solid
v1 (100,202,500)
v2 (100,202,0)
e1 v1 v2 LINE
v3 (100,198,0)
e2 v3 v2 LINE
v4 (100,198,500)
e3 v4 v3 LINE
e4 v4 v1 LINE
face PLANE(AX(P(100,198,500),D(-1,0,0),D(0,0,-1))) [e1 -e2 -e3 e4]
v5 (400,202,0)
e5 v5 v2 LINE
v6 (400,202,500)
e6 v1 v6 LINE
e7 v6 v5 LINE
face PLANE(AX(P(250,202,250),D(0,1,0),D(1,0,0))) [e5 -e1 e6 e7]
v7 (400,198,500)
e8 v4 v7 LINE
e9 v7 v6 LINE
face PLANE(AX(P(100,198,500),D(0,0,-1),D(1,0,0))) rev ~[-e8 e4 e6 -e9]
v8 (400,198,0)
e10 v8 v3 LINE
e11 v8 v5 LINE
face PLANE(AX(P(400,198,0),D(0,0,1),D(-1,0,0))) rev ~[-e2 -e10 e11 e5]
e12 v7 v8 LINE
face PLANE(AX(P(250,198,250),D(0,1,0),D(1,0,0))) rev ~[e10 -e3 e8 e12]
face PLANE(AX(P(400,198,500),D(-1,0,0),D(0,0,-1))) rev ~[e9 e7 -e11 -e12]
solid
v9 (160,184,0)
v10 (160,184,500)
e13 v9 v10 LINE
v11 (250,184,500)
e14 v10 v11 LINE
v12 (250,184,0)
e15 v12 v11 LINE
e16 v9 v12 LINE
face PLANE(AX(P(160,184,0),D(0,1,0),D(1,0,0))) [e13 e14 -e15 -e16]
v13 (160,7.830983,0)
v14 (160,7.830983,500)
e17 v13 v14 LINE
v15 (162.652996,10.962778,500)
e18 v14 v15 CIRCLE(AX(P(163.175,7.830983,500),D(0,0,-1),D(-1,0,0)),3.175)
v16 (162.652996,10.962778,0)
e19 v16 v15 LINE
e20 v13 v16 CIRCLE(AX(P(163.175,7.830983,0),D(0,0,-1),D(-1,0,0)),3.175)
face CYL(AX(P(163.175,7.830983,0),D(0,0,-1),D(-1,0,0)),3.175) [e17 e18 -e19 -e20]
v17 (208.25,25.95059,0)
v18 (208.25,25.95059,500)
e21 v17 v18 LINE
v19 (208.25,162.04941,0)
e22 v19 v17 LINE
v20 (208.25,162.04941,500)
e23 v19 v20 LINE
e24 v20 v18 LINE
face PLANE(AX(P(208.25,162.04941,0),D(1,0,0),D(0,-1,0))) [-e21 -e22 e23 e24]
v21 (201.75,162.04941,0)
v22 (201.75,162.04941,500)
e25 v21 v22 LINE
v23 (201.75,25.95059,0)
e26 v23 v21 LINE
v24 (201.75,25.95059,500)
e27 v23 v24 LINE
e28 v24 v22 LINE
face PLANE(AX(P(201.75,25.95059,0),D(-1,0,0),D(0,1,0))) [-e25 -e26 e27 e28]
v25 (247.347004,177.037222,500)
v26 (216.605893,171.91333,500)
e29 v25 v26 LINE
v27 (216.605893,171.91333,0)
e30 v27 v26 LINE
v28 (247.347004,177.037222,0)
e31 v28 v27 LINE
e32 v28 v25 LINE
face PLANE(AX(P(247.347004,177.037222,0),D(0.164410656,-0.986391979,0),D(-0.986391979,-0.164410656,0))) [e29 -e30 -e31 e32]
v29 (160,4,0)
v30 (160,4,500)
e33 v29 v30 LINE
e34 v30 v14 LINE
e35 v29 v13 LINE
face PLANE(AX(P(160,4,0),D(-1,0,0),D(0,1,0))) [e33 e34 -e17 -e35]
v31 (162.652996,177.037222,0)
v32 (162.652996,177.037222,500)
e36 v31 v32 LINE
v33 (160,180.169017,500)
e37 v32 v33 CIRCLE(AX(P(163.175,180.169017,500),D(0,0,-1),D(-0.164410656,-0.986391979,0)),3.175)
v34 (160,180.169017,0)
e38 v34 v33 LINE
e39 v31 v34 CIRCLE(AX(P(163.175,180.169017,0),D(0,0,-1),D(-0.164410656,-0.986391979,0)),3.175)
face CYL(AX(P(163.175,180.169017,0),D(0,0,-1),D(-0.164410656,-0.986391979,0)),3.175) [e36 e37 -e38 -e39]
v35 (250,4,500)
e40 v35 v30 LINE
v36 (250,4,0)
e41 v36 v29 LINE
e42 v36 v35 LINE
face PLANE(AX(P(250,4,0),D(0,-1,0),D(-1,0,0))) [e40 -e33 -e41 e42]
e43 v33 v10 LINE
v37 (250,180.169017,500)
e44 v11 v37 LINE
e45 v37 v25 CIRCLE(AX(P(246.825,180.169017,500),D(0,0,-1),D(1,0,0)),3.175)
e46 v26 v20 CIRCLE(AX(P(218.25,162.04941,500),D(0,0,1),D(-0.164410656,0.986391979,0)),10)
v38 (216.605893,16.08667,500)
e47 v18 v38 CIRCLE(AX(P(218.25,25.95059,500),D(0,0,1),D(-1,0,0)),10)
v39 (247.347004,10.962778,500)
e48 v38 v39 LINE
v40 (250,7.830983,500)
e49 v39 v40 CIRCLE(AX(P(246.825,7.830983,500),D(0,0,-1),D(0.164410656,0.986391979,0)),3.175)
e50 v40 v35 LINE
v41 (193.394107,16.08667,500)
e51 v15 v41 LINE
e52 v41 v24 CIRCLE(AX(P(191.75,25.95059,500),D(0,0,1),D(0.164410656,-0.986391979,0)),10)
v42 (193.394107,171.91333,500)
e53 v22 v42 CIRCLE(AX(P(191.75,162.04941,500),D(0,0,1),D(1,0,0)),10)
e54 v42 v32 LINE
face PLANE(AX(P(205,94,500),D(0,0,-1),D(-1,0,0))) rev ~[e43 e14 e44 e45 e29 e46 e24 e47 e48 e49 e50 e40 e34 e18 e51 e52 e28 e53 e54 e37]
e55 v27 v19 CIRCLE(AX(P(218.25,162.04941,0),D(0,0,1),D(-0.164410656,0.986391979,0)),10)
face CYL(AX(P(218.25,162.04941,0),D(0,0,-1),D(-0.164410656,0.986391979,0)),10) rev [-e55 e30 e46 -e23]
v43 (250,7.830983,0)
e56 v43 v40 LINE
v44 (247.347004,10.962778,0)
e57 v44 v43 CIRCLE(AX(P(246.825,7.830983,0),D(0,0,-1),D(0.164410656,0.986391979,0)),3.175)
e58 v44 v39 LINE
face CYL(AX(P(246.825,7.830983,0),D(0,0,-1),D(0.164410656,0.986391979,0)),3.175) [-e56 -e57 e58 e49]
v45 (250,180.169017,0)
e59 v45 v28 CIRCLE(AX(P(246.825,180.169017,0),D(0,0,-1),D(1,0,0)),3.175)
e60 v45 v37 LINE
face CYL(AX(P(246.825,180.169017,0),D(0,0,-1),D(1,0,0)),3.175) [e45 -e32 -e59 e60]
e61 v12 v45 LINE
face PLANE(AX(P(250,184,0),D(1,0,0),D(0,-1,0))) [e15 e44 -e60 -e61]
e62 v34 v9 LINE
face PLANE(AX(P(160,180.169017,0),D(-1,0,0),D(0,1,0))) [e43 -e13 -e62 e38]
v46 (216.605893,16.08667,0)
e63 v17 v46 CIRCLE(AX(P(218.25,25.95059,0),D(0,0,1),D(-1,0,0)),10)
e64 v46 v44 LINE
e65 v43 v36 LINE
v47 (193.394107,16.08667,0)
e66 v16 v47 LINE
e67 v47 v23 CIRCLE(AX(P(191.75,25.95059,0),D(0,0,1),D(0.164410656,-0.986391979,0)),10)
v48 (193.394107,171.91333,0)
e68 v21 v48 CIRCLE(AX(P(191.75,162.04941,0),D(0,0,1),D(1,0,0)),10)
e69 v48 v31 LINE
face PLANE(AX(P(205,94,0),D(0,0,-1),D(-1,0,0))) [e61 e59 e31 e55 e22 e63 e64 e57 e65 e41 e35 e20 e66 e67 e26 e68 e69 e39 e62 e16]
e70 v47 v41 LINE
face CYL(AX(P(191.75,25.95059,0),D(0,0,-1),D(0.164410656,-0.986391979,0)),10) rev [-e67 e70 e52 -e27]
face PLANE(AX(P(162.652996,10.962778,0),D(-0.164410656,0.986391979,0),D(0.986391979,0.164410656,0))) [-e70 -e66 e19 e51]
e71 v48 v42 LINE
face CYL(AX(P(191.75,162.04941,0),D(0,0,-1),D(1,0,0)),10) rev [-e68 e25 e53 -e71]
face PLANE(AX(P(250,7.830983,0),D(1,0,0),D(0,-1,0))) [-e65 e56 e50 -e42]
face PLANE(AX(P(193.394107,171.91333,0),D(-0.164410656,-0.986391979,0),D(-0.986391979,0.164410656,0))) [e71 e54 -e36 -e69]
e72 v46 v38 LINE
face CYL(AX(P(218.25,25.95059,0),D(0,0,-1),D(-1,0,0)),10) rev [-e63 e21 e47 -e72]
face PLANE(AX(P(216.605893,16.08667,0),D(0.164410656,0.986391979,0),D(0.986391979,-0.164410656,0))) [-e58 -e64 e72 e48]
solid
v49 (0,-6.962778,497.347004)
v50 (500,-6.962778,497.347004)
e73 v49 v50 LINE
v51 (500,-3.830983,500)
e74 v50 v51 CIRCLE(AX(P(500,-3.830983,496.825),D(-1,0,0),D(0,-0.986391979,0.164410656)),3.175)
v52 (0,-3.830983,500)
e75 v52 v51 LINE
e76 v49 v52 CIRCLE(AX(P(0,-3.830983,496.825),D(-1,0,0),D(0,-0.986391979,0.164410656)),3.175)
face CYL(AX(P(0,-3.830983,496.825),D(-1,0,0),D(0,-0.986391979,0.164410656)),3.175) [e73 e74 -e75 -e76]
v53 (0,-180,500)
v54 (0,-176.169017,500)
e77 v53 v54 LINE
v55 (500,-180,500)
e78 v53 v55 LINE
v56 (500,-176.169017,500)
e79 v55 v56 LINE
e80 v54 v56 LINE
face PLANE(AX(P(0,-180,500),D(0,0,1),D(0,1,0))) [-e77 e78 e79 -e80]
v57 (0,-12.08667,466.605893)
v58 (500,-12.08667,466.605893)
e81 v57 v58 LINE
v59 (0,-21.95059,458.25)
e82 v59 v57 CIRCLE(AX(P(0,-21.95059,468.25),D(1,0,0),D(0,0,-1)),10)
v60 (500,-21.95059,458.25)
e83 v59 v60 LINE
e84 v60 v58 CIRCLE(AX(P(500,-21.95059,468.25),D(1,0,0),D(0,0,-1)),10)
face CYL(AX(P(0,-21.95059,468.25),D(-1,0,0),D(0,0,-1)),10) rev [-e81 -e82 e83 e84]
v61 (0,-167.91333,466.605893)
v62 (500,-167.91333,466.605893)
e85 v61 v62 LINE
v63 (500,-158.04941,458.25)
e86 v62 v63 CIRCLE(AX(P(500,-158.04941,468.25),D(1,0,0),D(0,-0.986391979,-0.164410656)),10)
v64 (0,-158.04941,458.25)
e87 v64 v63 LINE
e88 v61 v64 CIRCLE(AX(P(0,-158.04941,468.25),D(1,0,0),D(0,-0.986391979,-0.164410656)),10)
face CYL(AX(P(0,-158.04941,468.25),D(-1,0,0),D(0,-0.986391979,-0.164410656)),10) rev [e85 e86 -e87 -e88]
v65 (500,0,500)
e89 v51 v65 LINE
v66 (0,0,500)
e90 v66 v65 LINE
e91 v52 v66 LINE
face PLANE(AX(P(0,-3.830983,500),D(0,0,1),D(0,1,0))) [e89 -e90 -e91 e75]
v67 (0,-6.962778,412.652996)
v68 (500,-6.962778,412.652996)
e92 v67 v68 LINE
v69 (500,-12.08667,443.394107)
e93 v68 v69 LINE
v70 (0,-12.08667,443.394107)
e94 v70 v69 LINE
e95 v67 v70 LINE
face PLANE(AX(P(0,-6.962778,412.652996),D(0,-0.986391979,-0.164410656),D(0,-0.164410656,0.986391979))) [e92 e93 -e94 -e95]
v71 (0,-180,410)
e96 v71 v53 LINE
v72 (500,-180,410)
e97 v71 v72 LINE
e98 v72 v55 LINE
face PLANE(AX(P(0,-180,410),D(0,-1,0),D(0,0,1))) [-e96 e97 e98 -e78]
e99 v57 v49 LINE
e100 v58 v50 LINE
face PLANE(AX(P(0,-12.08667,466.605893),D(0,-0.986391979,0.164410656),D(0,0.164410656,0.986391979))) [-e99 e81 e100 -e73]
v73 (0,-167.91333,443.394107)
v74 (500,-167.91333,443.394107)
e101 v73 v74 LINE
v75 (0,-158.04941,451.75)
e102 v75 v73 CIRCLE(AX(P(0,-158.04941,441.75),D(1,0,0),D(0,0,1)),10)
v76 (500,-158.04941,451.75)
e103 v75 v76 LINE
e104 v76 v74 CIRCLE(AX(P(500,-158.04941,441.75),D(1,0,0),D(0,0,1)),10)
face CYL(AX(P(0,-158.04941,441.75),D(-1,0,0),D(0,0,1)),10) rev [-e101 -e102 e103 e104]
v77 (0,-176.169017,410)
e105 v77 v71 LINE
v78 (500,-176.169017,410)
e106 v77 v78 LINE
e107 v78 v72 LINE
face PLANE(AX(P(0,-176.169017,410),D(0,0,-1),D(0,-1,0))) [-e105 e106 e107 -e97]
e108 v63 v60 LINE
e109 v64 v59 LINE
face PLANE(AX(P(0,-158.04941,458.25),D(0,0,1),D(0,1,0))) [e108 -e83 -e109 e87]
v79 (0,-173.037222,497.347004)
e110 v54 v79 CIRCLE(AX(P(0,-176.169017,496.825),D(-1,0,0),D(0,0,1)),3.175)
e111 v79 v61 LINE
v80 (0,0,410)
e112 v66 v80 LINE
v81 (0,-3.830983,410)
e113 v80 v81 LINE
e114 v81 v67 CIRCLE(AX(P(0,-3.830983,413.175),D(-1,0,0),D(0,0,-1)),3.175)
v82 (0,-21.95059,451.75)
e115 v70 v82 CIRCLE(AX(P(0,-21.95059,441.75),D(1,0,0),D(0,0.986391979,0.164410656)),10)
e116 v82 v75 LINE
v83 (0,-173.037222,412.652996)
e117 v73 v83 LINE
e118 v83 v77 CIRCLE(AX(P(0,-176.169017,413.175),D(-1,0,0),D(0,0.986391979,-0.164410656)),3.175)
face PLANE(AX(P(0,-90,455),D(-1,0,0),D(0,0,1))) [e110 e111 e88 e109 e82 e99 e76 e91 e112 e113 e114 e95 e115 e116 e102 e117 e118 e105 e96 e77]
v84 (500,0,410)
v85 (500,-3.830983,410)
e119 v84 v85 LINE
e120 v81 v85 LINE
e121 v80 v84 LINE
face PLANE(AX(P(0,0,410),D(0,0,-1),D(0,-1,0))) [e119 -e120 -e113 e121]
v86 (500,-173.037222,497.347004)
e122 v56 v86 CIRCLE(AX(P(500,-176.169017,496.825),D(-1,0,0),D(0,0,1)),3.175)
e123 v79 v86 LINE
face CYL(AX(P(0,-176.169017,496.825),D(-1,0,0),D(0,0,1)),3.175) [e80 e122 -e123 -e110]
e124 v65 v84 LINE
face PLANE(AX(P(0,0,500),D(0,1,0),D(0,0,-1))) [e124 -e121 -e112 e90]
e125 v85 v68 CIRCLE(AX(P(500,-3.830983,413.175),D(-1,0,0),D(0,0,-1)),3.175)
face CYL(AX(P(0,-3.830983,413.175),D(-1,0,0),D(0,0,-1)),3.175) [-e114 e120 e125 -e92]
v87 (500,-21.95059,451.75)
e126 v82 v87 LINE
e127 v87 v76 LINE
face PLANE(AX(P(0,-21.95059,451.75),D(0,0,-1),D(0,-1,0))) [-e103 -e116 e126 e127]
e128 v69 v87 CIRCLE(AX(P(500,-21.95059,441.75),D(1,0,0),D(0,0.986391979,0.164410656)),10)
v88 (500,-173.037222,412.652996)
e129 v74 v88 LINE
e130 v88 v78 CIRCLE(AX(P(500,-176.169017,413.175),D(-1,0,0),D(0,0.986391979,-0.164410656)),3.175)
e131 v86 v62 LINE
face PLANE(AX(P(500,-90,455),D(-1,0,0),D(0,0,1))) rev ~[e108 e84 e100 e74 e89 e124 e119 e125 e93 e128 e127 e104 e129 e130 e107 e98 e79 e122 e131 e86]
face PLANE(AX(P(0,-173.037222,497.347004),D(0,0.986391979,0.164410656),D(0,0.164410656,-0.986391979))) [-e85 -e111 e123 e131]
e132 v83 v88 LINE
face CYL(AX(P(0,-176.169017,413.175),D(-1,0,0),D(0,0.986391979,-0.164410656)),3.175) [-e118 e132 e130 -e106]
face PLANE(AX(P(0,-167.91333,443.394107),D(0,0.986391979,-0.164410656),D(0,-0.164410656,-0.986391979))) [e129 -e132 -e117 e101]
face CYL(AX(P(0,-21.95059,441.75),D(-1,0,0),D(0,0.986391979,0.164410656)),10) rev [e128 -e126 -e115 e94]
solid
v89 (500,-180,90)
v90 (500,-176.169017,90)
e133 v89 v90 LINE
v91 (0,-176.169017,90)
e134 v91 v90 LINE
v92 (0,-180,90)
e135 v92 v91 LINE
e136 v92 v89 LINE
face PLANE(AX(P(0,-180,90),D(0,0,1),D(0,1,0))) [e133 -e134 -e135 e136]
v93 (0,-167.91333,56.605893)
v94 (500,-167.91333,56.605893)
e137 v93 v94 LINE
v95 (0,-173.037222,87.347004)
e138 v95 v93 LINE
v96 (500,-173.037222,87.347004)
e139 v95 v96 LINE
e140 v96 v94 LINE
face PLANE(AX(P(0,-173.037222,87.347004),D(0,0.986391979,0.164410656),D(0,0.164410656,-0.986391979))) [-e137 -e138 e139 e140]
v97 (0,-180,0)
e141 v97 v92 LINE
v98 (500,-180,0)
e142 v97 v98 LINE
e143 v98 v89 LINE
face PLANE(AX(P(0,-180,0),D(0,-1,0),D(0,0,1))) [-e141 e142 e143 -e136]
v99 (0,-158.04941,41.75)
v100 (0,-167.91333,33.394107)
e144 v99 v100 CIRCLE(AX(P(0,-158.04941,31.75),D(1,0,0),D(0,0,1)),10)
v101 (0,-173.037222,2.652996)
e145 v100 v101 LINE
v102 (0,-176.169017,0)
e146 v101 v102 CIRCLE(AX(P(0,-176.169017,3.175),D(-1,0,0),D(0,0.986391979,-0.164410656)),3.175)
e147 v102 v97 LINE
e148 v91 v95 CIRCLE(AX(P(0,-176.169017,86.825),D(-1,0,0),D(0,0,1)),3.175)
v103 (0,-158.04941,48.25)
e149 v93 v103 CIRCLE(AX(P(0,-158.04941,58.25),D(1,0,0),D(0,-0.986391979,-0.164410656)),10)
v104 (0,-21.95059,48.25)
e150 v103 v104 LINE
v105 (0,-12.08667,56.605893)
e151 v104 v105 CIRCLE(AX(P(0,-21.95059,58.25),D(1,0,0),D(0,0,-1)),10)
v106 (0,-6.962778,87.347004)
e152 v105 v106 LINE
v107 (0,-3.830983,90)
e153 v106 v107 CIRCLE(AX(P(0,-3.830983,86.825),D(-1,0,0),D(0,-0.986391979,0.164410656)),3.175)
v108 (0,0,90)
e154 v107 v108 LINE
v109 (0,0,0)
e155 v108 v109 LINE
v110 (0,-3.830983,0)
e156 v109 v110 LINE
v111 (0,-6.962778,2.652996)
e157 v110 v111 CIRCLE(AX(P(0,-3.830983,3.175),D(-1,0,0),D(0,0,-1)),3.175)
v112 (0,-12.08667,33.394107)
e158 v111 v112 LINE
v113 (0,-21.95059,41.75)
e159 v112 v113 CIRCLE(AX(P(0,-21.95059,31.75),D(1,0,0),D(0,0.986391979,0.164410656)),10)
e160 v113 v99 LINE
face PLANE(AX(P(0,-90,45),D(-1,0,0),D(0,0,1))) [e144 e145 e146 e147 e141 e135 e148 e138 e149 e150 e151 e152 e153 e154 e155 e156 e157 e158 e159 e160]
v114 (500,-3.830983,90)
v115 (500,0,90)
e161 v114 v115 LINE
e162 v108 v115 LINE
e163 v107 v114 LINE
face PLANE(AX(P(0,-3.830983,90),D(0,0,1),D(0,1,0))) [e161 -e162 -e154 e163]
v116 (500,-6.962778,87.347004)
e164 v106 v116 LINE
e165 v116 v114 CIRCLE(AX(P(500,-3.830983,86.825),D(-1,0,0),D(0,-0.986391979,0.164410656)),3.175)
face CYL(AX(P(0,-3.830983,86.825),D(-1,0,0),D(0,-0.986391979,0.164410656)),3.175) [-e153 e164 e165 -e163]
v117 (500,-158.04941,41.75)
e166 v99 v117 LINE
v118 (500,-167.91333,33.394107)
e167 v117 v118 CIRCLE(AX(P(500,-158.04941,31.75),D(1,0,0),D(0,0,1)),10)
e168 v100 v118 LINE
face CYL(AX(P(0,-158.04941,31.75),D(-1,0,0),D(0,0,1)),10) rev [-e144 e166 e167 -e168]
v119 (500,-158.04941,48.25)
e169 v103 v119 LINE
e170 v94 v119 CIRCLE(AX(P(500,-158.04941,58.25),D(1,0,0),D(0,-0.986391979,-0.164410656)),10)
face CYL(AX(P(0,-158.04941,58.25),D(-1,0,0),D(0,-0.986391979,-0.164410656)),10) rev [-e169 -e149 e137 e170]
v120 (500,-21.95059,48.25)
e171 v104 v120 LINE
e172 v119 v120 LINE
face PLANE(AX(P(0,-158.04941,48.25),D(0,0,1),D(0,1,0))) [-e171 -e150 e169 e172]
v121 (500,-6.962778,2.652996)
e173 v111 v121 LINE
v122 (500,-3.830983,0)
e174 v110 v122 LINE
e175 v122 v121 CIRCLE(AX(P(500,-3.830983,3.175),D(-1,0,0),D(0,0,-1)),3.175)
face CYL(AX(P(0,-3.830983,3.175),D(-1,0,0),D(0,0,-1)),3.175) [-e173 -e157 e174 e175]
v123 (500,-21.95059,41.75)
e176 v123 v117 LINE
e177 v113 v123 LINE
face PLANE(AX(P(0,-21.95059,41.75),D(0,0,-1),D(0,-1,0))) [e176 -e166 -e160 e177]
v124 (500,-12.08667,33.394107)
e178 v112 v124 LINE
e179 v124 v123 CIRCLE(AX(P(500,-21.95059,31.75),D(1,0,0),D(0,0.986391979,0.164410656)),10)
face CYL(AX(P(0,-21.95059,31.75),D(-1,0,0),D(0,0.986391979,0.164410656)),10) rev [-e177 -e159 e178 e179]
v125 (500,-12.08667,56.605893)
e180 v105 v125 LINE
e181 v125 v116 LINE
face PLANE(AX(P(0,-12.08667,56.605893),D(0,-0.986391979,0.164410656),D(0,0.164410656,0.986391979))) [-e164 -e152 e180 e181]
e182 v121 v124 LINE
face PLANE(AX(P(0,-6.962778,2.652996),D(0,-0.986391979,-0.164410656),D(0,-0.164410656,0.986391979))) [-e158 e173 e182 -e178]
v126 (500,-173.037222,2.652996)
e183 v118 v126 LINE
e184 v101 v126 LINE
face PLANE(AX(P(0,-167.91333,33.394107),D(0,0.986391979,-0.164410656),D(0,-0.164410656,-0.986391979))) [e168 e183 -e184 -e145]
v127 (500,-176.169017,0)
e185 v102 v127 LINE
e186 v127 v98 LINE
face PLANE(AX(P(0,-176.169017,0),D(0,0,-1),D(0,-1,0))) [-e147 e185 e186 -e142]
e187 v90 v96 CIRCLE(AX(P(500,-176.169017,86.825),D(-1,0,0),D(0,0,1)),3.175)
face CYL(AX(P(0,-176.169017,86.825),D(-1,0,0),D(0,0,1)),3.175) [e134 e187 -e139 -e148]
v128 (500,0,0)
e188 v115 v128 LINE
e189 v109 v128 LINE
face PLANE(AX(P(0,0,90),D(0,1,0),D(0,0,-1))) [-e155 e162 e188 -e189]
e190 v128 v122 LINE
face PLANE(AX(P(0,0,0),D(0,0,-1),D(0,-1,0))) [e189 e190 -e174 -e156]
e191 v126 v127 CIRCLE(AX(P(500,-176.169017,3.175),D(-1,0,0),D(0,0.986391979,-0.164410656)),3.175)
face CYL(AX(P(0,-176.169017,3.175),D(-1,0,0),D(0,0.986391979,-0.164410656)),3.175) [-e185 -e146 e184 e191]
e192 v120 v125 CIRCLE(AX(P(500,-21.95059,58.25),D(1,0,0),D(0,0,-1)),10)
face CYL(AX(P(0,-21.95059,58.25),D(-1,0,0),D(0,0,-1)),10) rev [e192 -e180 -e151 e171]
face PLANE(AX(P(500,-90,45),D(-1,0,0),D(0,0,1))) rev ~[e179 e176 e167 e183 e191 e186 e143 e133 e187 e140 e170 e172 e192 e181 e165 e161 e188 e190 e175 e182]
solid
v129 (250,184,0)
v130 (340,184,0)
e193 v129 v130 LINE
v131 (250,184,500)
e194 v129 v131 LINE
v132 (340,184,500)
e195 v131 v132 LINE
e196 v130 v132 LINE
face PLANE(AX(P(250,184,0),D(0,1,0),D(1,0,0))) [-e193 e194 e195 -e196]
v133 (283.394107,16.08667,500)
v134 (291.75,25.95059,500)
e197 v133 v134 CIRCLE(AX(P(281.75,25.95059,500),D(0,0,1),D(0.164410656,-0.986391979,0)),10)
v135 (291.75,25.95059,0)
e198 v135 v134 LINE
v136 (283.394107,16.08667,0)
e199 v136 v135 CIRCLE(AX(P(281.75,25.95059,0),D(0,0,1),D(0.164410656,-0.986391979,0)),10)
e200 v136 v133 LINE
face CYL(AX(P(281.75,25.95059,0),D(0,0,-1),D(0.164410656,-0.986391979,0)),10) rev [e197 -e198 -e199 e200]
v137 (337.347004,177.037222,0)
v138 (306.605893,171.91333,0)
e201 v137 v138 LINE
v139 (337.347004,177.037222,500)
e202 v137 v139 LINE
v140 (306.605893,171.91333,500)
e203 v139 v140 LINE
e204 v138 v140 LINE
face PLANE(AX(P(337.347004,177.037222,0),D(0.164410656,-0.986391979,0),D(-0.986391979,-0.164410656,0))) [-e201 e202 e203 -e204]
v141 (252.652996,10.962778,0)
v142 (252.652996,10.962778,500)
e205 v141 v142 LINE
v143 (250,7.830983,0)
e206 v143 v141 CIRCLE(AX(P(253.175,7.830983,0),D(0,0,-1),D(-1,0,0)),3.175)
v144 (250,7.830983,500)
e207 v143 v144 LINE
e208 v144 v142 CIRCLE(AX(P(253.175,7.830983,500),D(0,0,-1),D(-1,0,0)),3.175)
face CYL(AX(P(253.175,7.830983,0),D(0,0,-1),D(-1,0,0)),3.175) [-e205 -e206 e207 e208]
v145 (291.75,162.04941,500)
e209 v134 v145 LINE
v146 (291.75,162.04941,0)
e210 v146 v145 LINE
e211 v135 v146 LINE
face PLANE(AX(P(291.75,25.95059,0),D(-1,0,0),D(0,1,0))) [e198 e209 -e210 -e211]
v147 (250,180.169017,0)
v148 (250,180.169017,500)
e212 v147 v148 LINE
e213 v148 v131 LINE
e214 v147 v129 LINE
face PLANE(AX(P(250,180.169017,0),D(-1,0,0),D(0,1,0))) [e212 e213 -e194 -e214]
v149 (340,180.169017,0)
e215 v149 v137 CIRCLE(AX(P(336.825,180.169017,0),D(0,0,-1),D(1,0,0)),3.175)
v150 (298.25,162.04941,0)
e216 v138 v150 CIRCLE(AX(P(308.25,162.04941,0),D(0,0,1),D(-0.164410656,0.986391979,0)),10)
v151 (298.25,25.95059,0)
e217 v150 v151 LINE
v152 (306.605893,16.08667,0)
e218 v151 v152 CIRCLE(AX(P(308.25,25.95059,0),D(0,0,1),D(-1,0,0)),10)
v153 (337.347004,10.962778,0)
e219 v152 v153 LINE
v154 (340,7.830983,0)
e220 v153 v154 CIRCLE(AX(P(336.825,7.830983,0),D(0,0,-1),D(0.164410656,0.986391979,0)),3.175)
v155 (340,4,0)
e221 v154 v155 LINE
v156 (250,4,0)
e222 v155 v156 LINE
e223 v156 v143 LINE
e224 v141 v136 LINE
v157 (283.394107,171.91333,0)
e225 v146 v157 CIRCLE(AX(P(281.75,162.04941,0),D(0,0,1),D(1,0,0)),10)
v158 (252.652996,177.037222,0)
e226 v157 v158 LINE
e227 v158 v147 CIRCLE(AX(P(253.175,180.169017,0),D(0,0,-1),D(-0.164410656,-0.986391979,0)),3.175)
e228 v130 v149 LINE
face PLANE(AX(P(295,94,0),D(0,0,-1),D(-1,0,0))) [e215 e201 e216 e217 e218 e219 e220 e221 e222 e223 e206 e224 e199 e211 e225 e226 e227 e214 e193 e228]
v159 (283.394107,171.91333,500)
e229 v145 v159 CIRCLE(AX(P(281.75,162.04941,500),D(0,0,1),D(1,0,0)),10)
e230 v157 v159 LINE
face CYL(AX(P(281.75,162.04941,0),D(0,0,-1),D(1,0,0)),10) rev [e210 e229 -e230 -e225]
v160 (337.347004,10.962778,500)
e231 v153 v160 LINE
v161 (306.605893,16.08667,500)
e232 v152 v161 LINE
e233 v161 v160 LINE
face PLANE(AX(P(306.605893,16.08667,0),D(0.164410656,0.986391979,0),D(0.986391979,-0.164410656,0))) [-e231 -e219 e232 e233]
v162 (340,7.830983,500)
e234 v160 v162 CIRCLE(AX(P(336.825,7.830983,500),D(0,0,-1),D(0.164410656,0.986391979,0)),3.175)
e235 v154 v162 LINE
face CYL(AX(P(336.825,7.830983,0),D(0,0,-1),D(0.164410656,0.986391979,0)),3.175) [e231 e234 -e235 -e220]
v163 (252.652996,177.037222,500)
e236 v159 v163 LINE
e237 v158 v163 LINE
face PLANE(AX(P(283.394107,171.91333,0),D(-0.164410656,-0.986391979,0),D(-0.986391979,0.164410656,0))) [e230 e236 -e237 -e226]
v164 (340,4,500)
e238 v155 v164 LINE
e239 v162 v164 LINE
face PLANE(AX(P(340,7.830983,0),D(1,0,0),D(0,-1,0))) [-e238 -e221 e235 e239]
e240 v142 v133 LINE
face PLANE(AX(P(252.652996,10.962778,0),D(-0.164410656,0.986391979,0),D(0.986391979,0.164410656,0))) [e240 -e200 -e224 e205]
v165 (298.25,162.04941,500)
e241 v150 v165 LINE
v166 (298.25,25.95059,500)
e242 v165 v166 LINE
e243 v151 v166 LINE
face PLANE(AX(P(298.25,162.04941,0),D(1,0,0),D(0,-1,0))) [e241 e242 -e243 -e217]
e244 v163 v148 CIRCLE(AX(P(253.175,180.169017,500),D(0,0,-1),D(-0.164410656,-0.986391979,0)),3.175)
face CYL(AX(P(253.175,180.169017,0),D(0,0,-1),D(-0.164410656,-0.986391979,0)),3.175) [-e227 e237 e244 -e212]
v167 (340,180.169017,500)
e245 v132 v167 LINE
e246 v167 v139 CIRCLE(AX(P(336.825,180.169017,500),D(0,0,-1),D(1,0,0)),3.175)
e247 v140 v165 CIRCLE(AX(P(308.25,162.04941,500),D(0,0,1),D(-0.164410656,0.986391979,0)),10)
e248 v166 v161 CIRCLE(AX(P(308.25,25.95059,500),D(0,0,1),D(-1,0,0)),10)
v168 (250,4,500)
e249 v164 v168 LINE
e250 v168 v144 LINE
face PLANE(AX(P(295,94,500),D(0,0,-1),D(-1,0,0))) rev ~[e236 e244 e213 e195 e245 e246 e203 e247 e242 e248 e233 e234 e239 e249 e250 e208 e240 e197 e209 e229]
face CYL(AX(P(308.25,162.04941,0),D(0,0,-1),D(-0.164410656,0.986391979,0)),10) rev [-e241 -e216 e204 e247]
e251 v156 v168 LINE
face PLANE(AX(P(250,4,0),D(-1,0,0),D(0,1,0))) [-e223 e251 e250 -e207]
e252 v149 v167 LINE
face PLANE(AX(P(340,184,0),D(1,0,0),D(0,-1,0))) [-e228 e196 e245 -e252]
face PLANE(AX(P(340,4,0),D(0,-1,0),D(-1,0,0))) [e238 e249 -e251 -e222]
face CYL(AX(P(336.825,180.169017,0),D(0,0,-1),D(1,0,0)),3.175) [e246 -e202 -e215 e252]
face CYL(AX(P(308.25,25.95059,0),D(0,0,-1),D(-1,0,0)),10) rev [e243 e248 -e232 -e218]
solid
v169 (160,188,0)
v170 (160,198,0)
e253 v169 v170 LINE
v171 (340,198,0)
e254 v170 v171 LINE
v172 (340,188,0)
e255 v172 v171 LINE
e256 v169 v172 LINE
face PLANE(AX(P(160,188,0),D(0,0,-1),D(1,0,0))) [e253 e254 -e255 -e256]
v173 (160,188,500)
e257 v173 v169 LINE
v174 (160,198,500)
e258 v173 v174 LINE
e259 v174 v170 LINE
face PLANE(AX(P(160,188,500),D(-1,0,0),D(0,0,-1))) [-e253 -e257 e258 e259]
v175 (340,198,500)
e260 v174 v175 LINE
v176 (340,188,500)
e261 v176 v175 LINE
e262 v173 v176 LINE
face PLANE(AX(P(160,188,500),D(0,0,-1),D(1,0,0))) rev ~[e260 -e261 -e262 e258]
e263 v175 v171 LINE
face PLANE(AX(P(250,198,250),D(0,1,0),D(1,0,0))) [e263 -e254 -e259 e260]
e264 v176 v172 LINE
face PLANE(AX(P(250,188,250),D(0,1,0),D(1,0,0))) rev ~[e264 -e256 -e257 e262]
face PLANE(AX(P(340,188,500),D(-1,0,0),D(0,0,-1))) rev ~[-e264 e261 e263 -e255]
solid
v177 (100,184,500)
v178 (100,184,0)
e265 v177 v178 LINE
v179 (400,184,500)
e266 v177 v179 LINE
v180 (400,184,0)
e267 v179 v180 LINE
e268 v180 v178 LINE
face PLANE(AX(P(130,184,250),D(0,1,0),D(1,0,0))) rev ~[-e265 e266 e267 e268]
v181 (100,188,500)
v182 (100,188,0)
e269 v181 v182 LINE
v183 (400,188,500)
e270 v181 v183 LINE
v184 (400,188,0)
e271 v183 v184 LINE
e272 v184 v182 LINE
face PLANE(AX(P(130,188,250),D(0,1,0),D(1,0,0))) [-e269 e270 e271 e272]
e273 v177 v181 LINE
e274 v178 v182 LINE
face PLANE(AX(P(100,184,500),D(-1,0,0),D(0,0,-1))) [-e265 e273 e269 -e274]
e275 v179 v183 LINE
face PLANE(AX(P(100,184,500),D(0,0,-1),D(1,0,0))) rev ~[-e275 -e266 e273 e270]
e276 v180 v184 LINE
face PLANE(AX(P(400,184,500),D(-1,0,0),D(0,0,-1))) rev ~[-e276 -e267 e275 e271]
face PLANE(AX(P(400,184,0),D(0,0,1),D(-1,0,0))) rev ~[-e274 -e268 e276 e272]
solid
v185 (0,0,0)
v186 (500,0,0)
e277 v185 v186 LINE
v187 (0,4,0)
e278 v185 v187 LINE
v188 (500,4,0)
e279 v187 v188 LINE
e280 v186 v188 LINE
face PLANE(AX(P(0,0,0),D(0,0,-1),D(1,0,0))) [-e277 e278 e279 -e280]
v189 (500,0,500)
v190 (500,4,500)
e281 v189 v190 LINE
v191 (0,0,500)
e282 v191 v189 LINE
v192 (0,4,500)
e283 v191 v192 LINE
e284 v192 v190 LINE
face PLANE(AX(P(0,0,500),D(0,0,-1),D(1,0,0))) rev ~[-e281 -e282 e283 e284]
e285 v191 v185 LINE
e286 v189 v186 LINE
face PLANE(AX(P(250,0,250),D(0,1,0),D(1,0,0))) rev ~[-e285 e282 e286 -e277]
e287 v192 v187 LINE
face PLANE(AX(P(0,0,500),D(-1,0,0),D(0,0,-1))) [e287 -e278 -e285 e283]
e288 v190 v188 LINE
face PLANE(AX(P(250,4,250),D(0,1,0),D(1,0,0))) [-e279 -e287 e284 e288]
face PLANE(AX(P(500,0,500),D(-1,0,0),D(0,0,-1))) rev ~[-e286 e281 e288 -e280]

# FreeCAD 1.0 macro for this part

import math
import FreeCAD as App
import Part
import Sketcher

V = App.Vector

doc = App.newDocument("Part")
body = doc.addObject("PartDesign::Body", "Body")

sketch1 = body.newObject("Sketcher::SketchObject", "Sketch")
sketch1.AttachmentSupport = (doc.getObject("YZ_Plane"), [""])
sketch1.MapMode = "FlatFace"
sketch1.addGeometry([
    Part.LineSegment(V(-176.169017, 90, 0), V(-180, 90, 0)),
    Part.LineSegment(V(-180, 90, 0), V(-180, 0, 0)),
    Part.LineSegment(V(-180, 0, 0), V(-176.169017, 0, 0)),
    Part.ArcOfCircle(Part.Circle(V(-176.169017, 3.175, 0), V(0, 0, 1), 3.175), math.radians(-90), math.radians(-9.463)),
    Part.LineSegment(V(-173.037222, 2.652996, 0), V(-167.91333, 33.394107, 0)),
    Part.ArcOfCircle(Part.Circle(V(-158.04941, 31.75, 0), V(0, 0, 1), 10), math.radians(90), math.radians(170.537)),
    Part.LineSegment(V(-158.04941, 41.75, 0), V(-21.95059, 41.75, 0)),
    Part.ArcOfCircle(Part.Circle(V(-21.95059, 31.75, 0), V(0, 0, 1), 10), math.radians(9.463), math.radians(90)),
    Part.LineSegment(V(-12.08667, 33.394107, 0), V(-6.962778, 2.652996, 0)),
    Part.ArcOfCircle(Part.Circle(V(-3.830983, 3.175, 0), V(0, 0, 1), 3.175), math.radians(-170.537), math.radians(-90)),
    Part.LineSegment(V(-3.830983, 0, 0), V(0, 0, 0)),
    Part.LineSegment(V(0, 0, 0), V(0, 90, 0)),
    Part.LineSegment(V(0, 90, 0), V(-3.830983, 90, 0)),
    Part.ArcOfCircle(Part.Circle(V(-3.830983, 86.825, 0), V(0, 0, 1), 3.175), math.radians(90), math.radians(170.537)),
    Part.LineSegment(V(-6.962778, 87.347004, 0), V(-12.08667, 56.605893, 0)),
    Part.ArcOfCircle(Part.Circle(V(-21.95059, 58.25, 0), V(0, 0, 1), 10), math.radians(-90), math.radians(-9.463)),
    Part.LineSegment(V(-21.95059, 48.25, 0), V(-158.04941, 48.25, 0)),
    Part.ArcOfCircle(Part.Circle(V(-158.04941, 58.25, 0), V(0, 0, 1), 10), math.radians(-170.537), math.radians(-90)),
    Part.LineSegment(V(-167.91333, 56.605893, 0), V(-173.037222, 87.347004, 0)),
    Part.ArcOfCircle(Part.Circle(V(-176.169017, 86.825, 0), V(0, 0, 1), 3.175), math.radians(9.463), math.radians(90)),
], False)
sketch1.addConstraint([
    Sketcher.Constraint("Coincident", 0, 2, 1, 1),
    Sketcher.Constraint("Coincident", 1, 2, 2, 1),
    Sketcher.Constraint("Tangent", 2, 2, 3, 1),
    Sketcher.Constraint("Tangent", 3, 2, 4, 1),
    Sketcher.Constraint("Tangent", 4, 2, 5, 2),
    Sketcher.Constraint("Tangent", 5, 1, 6, 1),
    Sketcher.Constraint("Tangent", 6, 2, 7, 2),
    Sketcher.Constraint("Tangent", 7, 1, 8, 1),
    Sketcher.Constraint("Tangent", 8, 2, 9, 1),
    Sketcher.Constraint("Tangent", 9, 2, 10, 1),
    Sketcher.Constraint("Coincident", 10, 2, 11, 1),
    Sketcher.Constraint("Coincident", 11, 2, 12, 1),
    Sketcher.Constraint("Tangent", 12, 2, 13, 1),
    Sketcher.Constraint("Tangent", 13, 2, 14, 1),
    Sketcher.Constraint("Tangent", 14, 2, 15, 2),
    Sketcher.Constraint("Tangent", 15, 1, 16, 1),
    Sketcher.Constraint("Tangent", 16, 2, 17, 2),
    Sketcher.Constraint("Tangent", 17, 1, 18, 1),
    Sketcher.Constraint("Tangent", 18, 2, 19, 1),
    Sketcher.Constraint("Tangent", 19, 2, 0, 1),
    Sketcher.Constraint("Horizontal", 0),
    Sketcher.Constraint("Vertical", 1),
    Sketcher.Constraint("Horizontal", 2),
    Sketcher.Constraint("Horizontal", 6),
    Sketcher.Constraint("Horizontal", 10),
    Sketcher.Constraint("Vertical", 11),
    Sketcher.Constraint("Horizontal", 12),
    Sketcher.Constraint("Horizontal", 16),
    Sketcher.Constraint("Coincident", 10, 2, -1, 1),
    Sketcher.Constraint("Equal", 5, 7),
    Sketcher.Constraint("Equal", 3, 9),
    Sketcher.Constraint("Equal", 9, 13),
    Sketcher.Constraint("Equal", 7, 15),
    Sketcher.Constraint("Equal", 15, 17),
    Sketcher.Constraint("Equal", 13, 19),
    Sketcher.Constraint("PointOnObject", 1, 2, -1),
    Sketcher.Constraint("Parallel", 4, 14),
    Sketcher.Constraint("Parallel", 8, 18),
    Sketcher.Constraint("Horizontal", 13, 3, 19, 3),
    Sketcher.Constraint("Horizontal", 4, 2, 7, 1),
    Sketcher.Constraint("Vertical", 9, 3, 13, 3),
    Sketcher.Constraint("Vertical", 7, 3, 15, 3),
    Sketcher.Constraint("Vertical", 5, 3, 17, 3),
    Sketcher.Constraint("Equal", 2, 10),
    Sketcher.Constraint("Radius", 5, 10.0),
    Sketcher.Constraint("DistanceY", 1, 2, 1, 1, 90.0),
    Sketcher.Constraint("DistanceX", 0, 2, -1, 1, 180.0),
    Sketcher.Constraint("Radius", 3, 3.175),
    Sketcher.Constraint("DistanceY", 7, 3, 15, 3, 26.5),
    Sketcher.Constraint("DistanceX", 6, 1, 6, 2, 136.09882),
    Sketcher.Constraint("DistanceX", 0, 2, 0, 1, 3.830983),
])
pad1 = body.newObject("PartDesign::Pad", "Pad")
pad1.Profile = sketch1
pad1.Length = 500
body2 = doc.addObject("PartDesign::Body", "Body001")

sketch2 = body2.newObject("Sketcher::SketchObject", "Sketch001")
sketch2.AttachmentSupport = (doc.getObject("YZ_Plane001"), [""])
sketch2.MapMode = "FlatFace"
sketch2.addGeometry([
    Part.LineSegment(V(-176.169017, 500, 0), V(-180, 500, 0)),
    Part.LineSegment(V(-180, 500, 0), V(-180, 410, 0)),
    Part.LineSegment(V(-180, 410, 0), V(-176.169017, 410, 0)),
    Part.ArcOfCircle(Part.Circle(V(-176.169017, 413.175, 0), V(0, 0, 1), 3.175), math.radians(-90), math.radians(-9.463)),
    Part.LineSegment(V(-173.037222, 412.652996, 0), V(-167.91333, 443.394107, 0)),
    Part.ArcOfCircle(Part.Circle(V(-158.04941, 441.75, 0), V(0, 0, 1), 10), math.radians(90), math.radians(170.537)),
    Part.LineSegment(V(-158.04941, 451.75, 0), V(-21.95059, 451.75, 0)),
    Part.ArcOfCircle(Part.Circle(V(-21.95059, 441.75, 0), V(0, 0, 1), 10), math.radians(9.463), math.radians(90)),
    Part.LineSegment(V(-12.08667, 443.394107, 0), V(-6.962778, 412.652996, 0)),
    Part.ArcOfCircle(Part.Circle(V(-3.830983, 413.175, 0), V(0, 0, 1), 3.175), math.radians(-170.537), math.radians(-90)),
    Part.LineSegment(V(-3.830983, 410, 0), V(0, 410, 0)),
    Part.LineSegment(V(0, 410, 0), V(0, 500, 0)),
    Part.LineSegment(V(0, 500, 0), V(-3.830983, 500, 0)),
    Part.ArcOfCircle(Part.Circle(V(-3.830983, 496.825, 0), V(0, 0, 1), 3.175), math.radians(90), math.radians(170.537)),
    Part.LineSegment(V(-6.962778, 497.347004, 0), V(-12.08667, 466.605893, 0)),
    Part.ArcOfCircle(Part.Circle(V(-21.95059, 468.25, 0), V(0, 0, 1), 10), math.radians(-90), math.radians(-9.463)),
    Part.LineSegment(V(-21.95059, 458.25, 0), V(-158.04941, 458.25, 0)),
    Part.ArcOfCircle(Part.Circle(V(-158.04941, 468.25, 0), V(0, 0, 1), 10), math.radians(-170.537), math.radians(-90)),
    Part.LineSegment(V(-167.91333, 466.605893, 0), V(-173.037222, 497.347004, 0)),
    Part.ArcOfCircle(Part.Circle(V(-176.169017, 496.825, 0), V(0, 0, 1), 3.175), math.radians(9.463), math.radians(90)),
], False)
sketch2.addConstraint([
    Sketcher.Constraint("Coincident", 0, 2, 1, 1),
    Sketcher.Constraint("Coincident", 1, 2, 2, 1),
    Sketcher.Constraint("Tangent", 2, 2, 3, 1),
    Sketcher.Constraint("Tangent", 3, 2, 4, 1),
    Sketcher.Constraint("Tangent", 4, 2, 5, 2),
    Sketcher.Constraint("Tangent", 5, 1, 6, 1),
    Sketcher.Constraint("Tangent", 6, 2, 7, 2),
    Sketcher.Constraint("Tangent", 7, 1, 8, 1),
    Sketcher.Constraint("Tangent", 8, 2, 9, 1),
    Sketcher.Constraint("Tangent", 9, 2, 10, 1),
    Sketcher.Constraint("Coincident", 10, 2, 11, 1),
    Sketcher.Constraint("Coincident", 11, 2, 12, 1),
    Sketcher.Constraint("Tangent", 12, 2, 13, 1),
    Sketcher.Constraint("Tangent", 13, 2, 14, 1),
    Sketcher.Constraint("Tangent", 14, 2, 15, 2),
    Sketcher.Constraint("Tangent", 15, 1, 16, 1),
    Sketcher.Constraint("Tangent", 16, 2, 17, 2),
    Sketcher.Constraint("Tangent", 17, 1, 18, 1),
    Sketcher.Constraint("Tangent", 18, 2, 19, 1),
    Sketcher.Constraint("Tangent", 19, 2, 0, 1),
    Sketcher.Constraint("Horizontal", 0),
    Sketcher.Constraint("Vertical", 1),
    Sketcher.Constraint("Horizontal", 2),
    Sketcher.Constraint("Horizontal", 6),
    Sketcher.Constraint("Horizontal", 10),
    Sketcher.Constraint("Vertical", 11),
    Sketcher.Constraint("Horizontal", 12),
    Sketcher.Constraint("Horizontal", 16),
    Sketcher.Constraint("Equal", 5, 7),
    Sketcher.Constraint("Equal", 3, 9),
    Sketcher.Constraint("Equal", 9, 13),
    Sketcher.Constraint("Equal", 7, 15),
    Sketcher.Constraint("Equal", 15, 17),
    Sketcher.Constraint("Equal", 13, 19),
    Sketcher.Constraint("PointOnObject", 10, 2, -2),
    Sketcher.Constraint("Parallel", 4, 14),
    Sketcher.Constraint("Parallel", 8, 18),
    Sketcher.Constraint("Horizontal", 3, 3, 9, 3),
    Sketcher.Constraint("Horizontal", 13, 3, 19, 3),
    Sketcher.Constraint("Horizontal", 4, 2, 7, 1),
    Sketcher.Constraint("Vertical", 9, 3, 13, 3),
    Sketcher.Constraint("Vertical", 7, 3, 15, 3),
    Sketcher.Constraint("Vertical", 5, 3, 17, 3),
    Sketcher.Constraint("Equal", 2, 10),
    Sketcher.Constraint("Radius", 5, 10.0),
    Sketcher.Constraint("DistanceY", 1, 2, 1, 1, 90.0),
    Sketcher.Constraint("DistanceX", 0, 2, -1, 1, 180.0),
    Sketcher.Constraint("DistanceY", -1, 1, 0, 2, 500.0),
    Sketcher.Constraint("Radius", 3, 3.175),
    Sketcher.Constraint("DistanceY", 7, 3, 15, 3, 26.5),
    Sketcher.Constraint("DistanceX", 6, 1, 6, 2, 136.09882),
    Sketcher.Constraint("DistanceX", 0, 2, 0, 1, 3.830983),
])
pad2 = body2.newObject("PartDesign::Pad", "Pad001")
pad2.Profile = sketch2
pad2.Length = 500
body3 = doc.addObject("PartDesign::Body", "Body002")

sketch3 = body3.newObject("Sketcher::SketchObject", "Sketch002")
sketch3.AttachmentSupport = (doc.getObject("XZ_Plane002"), [""])
sketch3.MapMode = "FlatFace"
sketch3.addGeometry([
    Part.LineSegment(V(0, 0, 0), V(0, 500, 0)),
    Part.LineSegment(V(0, 500, 0), V(500, 500, 0)),
    Part.LineSegment(V(500, 500, 0), V(500, 0, 0)),
    Part.LineSegment(V(500, 0, 0), V(0, 0, 0)),
], False)
sketch3.addConstraint([
    Sketcher.Constraint("Coincident", 0, 2, 1, 1),
    Sketcher.Constraint("Coincident", 1, 2, 2, 1),
    Sketcher.Constraint("Coincident", 2, 2, 3, 1),
    Sketcher.Constraint("Coincident", 3, 2, 0, 1),
    Sketcher.Constraint("Vertical", 0),
    Sketcher.Constraint("Horizontal", 1),
    Sketcher.Constraint("Vertical", 2),
    Sketcher.Constraint("Horizontal", 3),
    Sketcher.Constraint("Coincident", 3, 2, -1, 1),
    Sketcher.Constraint("Equal", 3, 0),
    Sketcher.Constraint("DistanceX", 1, 1, 1, 2, 500.0),
])
pad3 = body3.newObject("PartDesign::Pad", "Pad002")
pad3.Profile = sketch3
pad3.Length = 4
pad3.Reversed = True
body4 = doc.addObject("PartDesign::Body", "Body003")

sketch4 = body4.newObject("Sketcher::SketchObject", "Sketch003")
sketch4.AttachmentSupport = (doc.getObject("XY_Plane003"), [""])
sketch4.MapMode = "FlatFace"
sketch4.addGeometry([
    Part.LineSegment(V(250, 7.830983, 0), V(250, 4, 0)),
    Part.LineSegment(V(250, 4, 0), V(340, 4, 0)),
    Part.LineSegment(V(340, 4, 0), V(340, 7.830983, 0)),
    Part.ArcOfCircle(Part.Circle(V(336.825, 7.830983, 0), V(0, 0, 1), 3.175), math.radians(0), math.radians(80.537)),
    Part.LineSegment(V(337.347004, 10.962778, 0), V(306.605893, 16.08667, 0)),
    Part.ArcOfCircle(Part.Circle(V(308.25, 25.95059, 0), V(0, 0, 1), 10), math.radians(180), math.radians(260.537)),
    Part.LineSegment(V(298.25, 25.95059, 0), V(298.25, 162.04941, 0)),
    Part.ArcOfCircle(Part.Circle(V(308.25, 162.04941, 0), V(0, 0, 1), 10), math.radians(99.463), math.radians(180)),
    Part.LineSegment(V(306.605893, 171.91333, 0), V(337.347004, 177.037222, 0)),
    Part.ArcOfCircle(Part.Circle(V(336.825, 180.169017, 0), V(0, 0, 1), 3.175), math.radians(-80.537), math.radians(0)),
    Part.LineSegment(V(340, 180.169017, 0), V(340, 184, 0)),
    Part.LineSegment(V(340, 184, 0), V(250, 184, 0)),
    Part.LineSegment(V(250, 184, 0), V(250, 180.169017, 0)),
    Part.ArcOfCircle(Part.Circle(V(253.175, 180.169017, 0), V(0, 0, 1), 3.175), math.radians(180), math.radians(260.537)),
    Part.LineSegment(V(252.652996, 177.037222, 0), V(283.394107, 171.91333, 0)),
    Part.ArcOfCircle(Part.Circle(V(281.75, 162.04941, 0), V(0, 0, 1), 10), math.radians(0), math.radians(80.537)),
    Part.LineSegment(V(291.75, 162.04941, 0), V(291.75, 25.95059, 0)),
    Part.ArcOfCircle(Part.Circle(V(281.75, 25.95059, 0), V(0, 0, 1), 10), math.radians(-80.537), math.radians(0)),
    Part.LineSegment(V(283.394107, 16.08667, 0), V(252.652996, 10.962778, 0)),
    Part.ArcOfCircle(Part.Circle(V(253.175, 7.830983, 0), V(0, 0, 1), 3.175), math.radians(99.463), math.radians(180)),
], False)
sketch4.addConstraint([
    Sketcher.Constraint("Coincident", 0, 2, 1, 1),
    Sketcher.Constraint("Coincident", 1, 2, 2, 1),
    Sketcher.Constraint("Tangent", 2, 2, 3, 1),
    Sketcher.Constraint("Tangent", 3, 2, 4, 1),
    Sketcher.Constraint("Tangent", 4, 2, 5, 2),
    Sketcher.Constraint("Tangent", 5, 1, 6, 1),
    Sketcher.Constraint("Tangent", 6, 2, 7, 2),
    Sketcher.Constraint("Tangent", 7, 1, 8, 1),
    Sketcher.Constraint("Tangent", 8, 2, 9, 1),
    Sketcher.Constraint("Tangent", 9, 2, 10, 1),
    Sketcher.Constraint("Coincident", 10, 2, 11, 1),
    Sketcher.Constraint("Coincident", 11, 2, 12, 1),
    Sketcher.Constraint("Tangent", 12, 2, 13, 1),
    Sketcher.Constraint("Tangent", 13, 2, 14, 1),
    Sketcher.Constraint("Tangent", 14, 2, 15, 2),
    Sketcher.Constraint("Tangent", 15, 1, 16, 1),
    Sketcher.Constraint("Tangent", 16, 2, 17, 2),
    Sketcher.Constraint("Tangent", 17, 1, 18, 1),
    Sketcher.Constraint("Tangent", 18, 2, 19, 1),
    Sketcher.Constraint("Tangent", 19, 2, 0, 1),
    Sketcher.Constraint("Vertical", 0),
    Sketcher.Constraint("Horizontal", 1),
    Sketcher.Constraint("Vertical", 2),
    Sketcher.Constraint("Vertical", 6),
    Sketcher.Constraint("Vertical", 10),
    Sketcher.Constraint("Horizontal", 11),
    Sketcher.Constraint("Vertical", 12),
    Sketcher.Constraint("Vertical", 16),
    Sketcher.Constraint("Equal", 5, 7),
    Sketcher.Constraint("Equal", 3, 9),
    Sketcher.Constraint("Equal", 9, 13),
    Sketcher.Constraint("Equal", 7, 15),
    Sketcher.Constraint("Equal", 15, 17),
    Sketcher.Constraint("Equal", 13, 19),
    Sketcher.Constraint("Parallel", 4, 14),
    Sketcher.Constraint("Parallel", 8, 18),
    Sketcher.Constraint("Horizontal", 9, 3, 13, 3),
    Sketcher.Constraint("Horizontal", 7, 3, 15, 3),
    Sketcher.Constraint("Horizontal", 5, 3, 17, 3),
    Sketcher.Constraint("Horizontal", 3, 3, 19, 3),
    Sketcher.Constraint("Vertical", 3, 3, 9, 3),
    Sketcher.Constraint("Vertical", 13, 3, 19, 3),
    Sketcher.Constraint("Equal", 2, 10),
    Sketcher.Constraint("Radius", 5, 10.0),
    Sketcher.Constraint("DistanceX", 1, 1, 1, 2, 90.0),
    Sketcher.Constraint("DistanceX", -1, 1, 0, 2, 250.0),
    Sketcher.Constraint("DistanceY", -1, 1, 0, 2, 4.0),
    Sketcher.Constraint("DistanceY", -1, 1, 10, 2, 184.0),
    Sketcher.Constraint("Radius", 3, 3.175),
    Sketcher.Constraint("DistanceX", 15, 3, 7, 3, 26.5),
    Sketcher.Constraint("DistanceY", 6, 1, 6, 2, 136.09882),
    Sketcher.Constraint("DistanceY", 0, 2, 0, 1, 3.830983),
])
pad4 = body4.newObject("PartDesign::Pad", "Pad003")
pad4.Profile = sketch4
pad4.Length = 500
body5 = doc.addObject("PartDesign::Body", "Body004")

sketch5 = body5.newObject("Sketcher::SketchObject", "Sketch004")
sketch5.AttachmentSupport = (doc.getObject("XY_Plane004"), [""])
sketch5.MapMode = "FlatFace"
sketch5.addGeometry([
    Part.LineSegment(V(160, 7.830983, 0), V(160, 4, 0)),
    Part.LineSegment(V(160, 4, 0), V(250, 4, 0)),
    Part.LineSegment(V(250, 4, 0), V(250, 7.830983, 0)),
    Part.ArcOfCircle(Part.Circle(V(246.825, 7.830983, 0), V(0, 0, 1), 3.175), math.radians(0), math.radians(80.537)),
    Part.LineSegment(V(247.347004, 10.962778, 0), V(216.605893, 16.08667, 0)),
    Part.ArcOfCircle(Part.Circle(V(218.25, 25.95059, 0), V(0, 0, 1), 10), math.radians(180), math.radians(260.537)),
    Part.LineSegment(V(208.25, 25.95059, 0), V(208.25, 162.04941, 0)),
    Part.ArcOfCircle(Part.Circle(V(218.25, 162.04941, 0), V(0, 0, 1), 10), math.radians(99.463), math.radians(180)),
    Part.LineSegment(V(216.605893, 171.91333, 0), V(247.347004, 177.037222, 0)),
    Part.ArcOfCircle(Part.Circle(V(246.825, 180.169017, 0), V(0, 0, 1), 3.175), math.radians(-80.537), math.radians(0)),
    Part.LineSegment(V(250, 180.169017, 0), V(250, 184, 0)),
    Part.LineSegment(V(250, 184, 0), V(160, 184, 0)),
    Part.LineSegment(V(160, 184, 0), V(160, 180.169017, 0)),
    Part.ArcOfCircle(Part.Circle(V(163.175, 180.169017, 0), V(0, 0, 1), 3.175), math.radians(180), math.radians(260.537)),
    Part.LineSegment(V(162.652996, 177.037222, 0), V(193.394107, 171.91333, 0)),
    Part.ArcOfCircle(Part.Circle(V(191.75, 162.04941, 0), V(0, 0, 1), 10), math.radians(0), math.radians(80.537)),
    Part.LineSegment(V(201.75, 162.04941, 0), V(201.75, 25.95059, 0)),
    Part.ArcOfCircle(Part.Circle(V(191.75, 25.95059, 0), V(0, 0, 1), 10), math.radians(-80.537), math.radians(0)),
    Part.LineSegment(V(193.394107, 16.08667, 0), V(162.652996, 10.962778, 0)),
    Part.ArcOfCircle(Part.Circle(V(163.175, 7.830983, 0), V(0, 0, 1), 3.175), math.radians(99.463), math.radians(180)),
], False)
sketch5.addConstraint([
    Sketcher.Constraint("Coincident", 0, 2, 1, 1),
    Sketcher.Constraint("Coincident", 1, 2, 2, 1),
    Sketcher.Constraint("Tangent", 2, 2, 3, 1),
    Sketcher.Constraint("Tangent", 3, 2, 4, 1),
    Sketcher.Constraint("Tangent", 4, 2, 5, 2),
    Sketcher.Constraint("Tangent", 5, 1, 6, 1),
    Sketcher.Constraint("Tangent", 6, 2, 7, 2),
    Sketcher.Constraint("Tangent", 7, 1, 8, 1),
    Sketcher.Constraint("Tangent", 8, 2, 9, 1),
    Sketcher.Constraint("Tangent", 9, 2, 10, 1),
    Sketcher.Constraint("Coincident", 10, 2, 11, 1),
    Sketcher.Constraint("Coincident", 11, 2, 12, 1),
    Sketcher.Constraint("Tangent", 12, 2, 13, 1),
    Sketcher.Constraint("Tangent", 13, 2, 14, 1),
    Sketcher.Constraint("Tangent", 14, 2, 15, 2),
    Sketcher.Constraint("Tangent", 15, 1, 16, 1),
    Sketcher.Constraint("Tangent", 16, 2, 17, 2),
    Sketcher.Constraint("Tangent", 17, 1, 18, 1),
    Sketcher.Constraint("Tangent", 18, 2, 19, 1),
    Sketcher.Constraint("Tangent", 19, 2, 0, 1),
    Sketcher.Constraint("Vertical", 0),
    Sketcher.Constraint("Horizontal", 1),
    Sketcher.Constraint("Vertical", 2),
    Sketcher.Constraint("Vertical", 6),
    Sketcher.Constraint("Vertical", 10),
    Sketcher.Constraint("Horizontal", 11),
    Sketcher.Constraint("Vertical", 12),
    Sketcher.Constraint("Vertical", 16),
    Sketcher.Constraint("Equal", 5, 7),
    Sketcher.Constraint("Equal", 3, 9),
    Sketcher.Constraint("Equal", 9, 13),
    Sketcher.Constraint("Equal", 7, 15),
    Sketcher.Constraint("Equal", 15, 17),
    Sketcher.Constraint("Equal", 13, 19),
    Sketcher.Constraint("Parallel", 4, 14),
    Sketcher.Constraint("Parallel", 8, 18),
    Sketcher.Constraint("Horizontal", 9, 3, 13, 3),
    Sketcher.Constraint("Horizontal", 7, 3, 15, 3),
    Sketcher.Constraint("Horizontal", 5, 3, 17, 3),
    Sketcher.Constraint("Horizontal", 3, 3, 19, 3),
    Sketcher.Constraint("Vertical", 3, 3, 9, 3),
    Sketcher.Constraint("Vertical", 13, 3, 19, 3),
    Sketcher.Constraint("Equal", 2, 10),
    Sketcher.Constraint("Radius", 5, 10.0),
    Sketcher.Constraint("DistanceX", 1, 1, 1, 2, 90.0),
    Sketcher.Constraint("DistanceX", -1, 1, 0, 2, 160.0),
    Sketcher.Constraint("DistanceY", -1, 1, 0, 2, 4.0),
    Sketcher.Constraint("DistanceY", -1, 1, 10, 2, 184.0),
    Sketcher.Constraint("Radius", 3, 3.175),
    Sketcher.Constraint("DistanceX", 15, 3, 7, 3, 26.5),
    Sketcher.Constraint("DistanceY", 6, 1, 6, 2, 136.09882),
    Sketcher.Constraint("DistanceY", 0, 2, 0, 1, 3.830983),
])
pad5 = body5.newObject("PartDesign::Pad", "Pad004")
pad5.Profile = sketch5
pad5.Length = 500
body6 = doc.addObject("PartDesign::Body", "Body005")

sketch6 = body6.newObject("Sketcher::SketchObject", "Sketch005")
sketch6.AttachmentSupport = (doc.getObject("XZ_Plane005"), [""])
sketch6.MapMode = "FlatFace"
sketch6.AttachmentOffset = App.Placement(V(0, 0, -184), App.Rotation())
sketch6.addGeometry([
    Part.LineSegment(V(100, 0, 0), V(100, 500, 0)),
    Part.LineSegment(V(100, 500, 0), V(400, 500, 0)),
    Part.LineSegment(V(400, 500, 0), V(400, 0, 0)),
    Part.LineSegment(V(400, 0, 0), V(100, 0, 0)),
], False)
sketch6.addConstraint([
    Sketcher.Constraint("Coincident", 0, 2, 1, 1),
    Sketcher.Constraint("Coincident", 1, 2, 2, 1),
    Sketcher.Constraint("Coincident", 2, 2, 3, 1),
    Sketcher.Constraint("Coincident", 3, 2, 0, 1),
    Sketcher.Constraint("Vertical", 0),
    Sketcher.Constraint("Horizontal", 1),
    Sketcher.Constraint("Vertical", 2),
    Sketcher.Constraint("Horizontal", 3),
    Sketcher.Constraint("PointOnObject", 2, 2, -1),
    Sketcher.Constraint("DistanceX", 1, 1, 1, 2, 300.0),
    Sketcher.Constraint("DistanceY", 0, 1, 0, 2, 500.0),
    Sketcher.Constraint("DistanceX", -1, 1, 0, 2, 100.0),
])
pad6 = body6.newObject("PartDesign::Pad", "Pad005")
pad6.Profile = sketch6
pad6.Length = 4
pad6.Reversed = True
body7 = doc.addObject("PartDesign::Body", "Body006")

sketch7 = body7.newObject("Sketcher::SketchObject", "Sketch006")
sketch7.AttachmentSupport = (doc.getObject("XZ_Plane006"), [""])
sketch7.MapMode = "FlatFace"
sketch7.AttachmentOffset = App.Placement(V(0, 0, -188), App.Rotation())
sketch7.addGeometry([
    Part.LineSegment(V(160, 0, 0), V(160, 500, 0)),
    Part.LineSegment(V(160, 500, 0), V(340, 500, 0)),
    Part.LineSegment(V(340, 500, 0), V(340, 0, 0)),
    Part.LineSegment(V(340, 0, 0), V(160, 0, 0)),
], False)
sketch7.addConstraint([
    Sketcher.Constraint("Coincident", 0, 2, 1, 1),
    Sketcher.Constraint("Coincident", 1, 2, 2, 1),
    Sketcher.Constraint("Coincident", 2, 2, 3, 1),
    Sketcher.Constraint("Coincident", 3, 2, 0, 1),
    Sketcher.Constraint("Vertical", 0),
    Sketcher.Constraint("Horizontal", 1),
    Sketcher.Constraint("Vertical", 2),
    Sketcher.Constraint("Horizontal", 3),
    Sketcher.Constraint("PointOnObject", 2, 2, -1),
    Sketcher.Constraint("DistanceX", 1, 1, 1, 2, 180.0),
    Sketcher.Constraint("DistanceY", 0, 1, 0, 2, 500.0),
    Sketcher.Constraint("DistanceX", -1, 1, 0, 2, 160.0),
])
pad7 = body7.newObject("PartDesign::Pad", "Pad006")
pad7.Profile = sketch7
pad7.Length = 10
pad7.Reversed = True
body8 = doc.addObject("PartDesign::Body", "Body007")

sketch8 = body8.newObject("Sketcher::SketchObject", "Sketch007")
sketch8.AttachmentSupport = (doc.getObject("XZ_Plane007"), [""])
sketch8.MapMode = "FlatFace"
sketch8.AttachmentOffset = App.Placement(V(0, 0, -198), App.Rotation())
sketch8.addGeometry([
    Part.LineSegment(V(400, 500, 0), V(400, 0, 0)),
    Part.LineSegment(V(400, 0, 0), V(100, 0, 0)),
    Part.LineSegment(V(100, 0, 0), V(100, 500, 0)),
    Part.LineSegment(V(100, 500, 0), V(400, 500, 0)),
], False)
sketch8.addConstraint([
    Sketcher.Constraint("Coincident", 0, 2, 1, 1),
    Sketcher.Constraint("Coincident", 1, 2, 2, 1),
    Sketcher.Constraint("Coincident", 2, 2, 3, 1),
    Sketcher.Constraint("Coincident", 3, 2, 0, 1),
    Sketcher.Constraint("Vertical", 0),
    Sketcher.Constraint("Horizontal", 1),
    Sketcher.Constraint("Vertical", 2),
    Sketcher.Constraint("Horizontal", 3),
    Sketcher.Constraint("PointOnObject", 0, 2, -1),
    Sketcher.Constraint("DistanceX", 1, 2, 1, 1, 300.0),
    Sketcher.Constraint("DistanceY", 0, 2, 0, 1, 500.0),
    Sketcher.Constraint("DistanceX", -1, 1, 0, 2, 400.0),
])
pad8 = body8.newObject("PartDesign::Pad", "Pad007")
pad8.Profile = sketch8
pad8.Length = 4
pad8.Reversed = True

doc.recompute()
